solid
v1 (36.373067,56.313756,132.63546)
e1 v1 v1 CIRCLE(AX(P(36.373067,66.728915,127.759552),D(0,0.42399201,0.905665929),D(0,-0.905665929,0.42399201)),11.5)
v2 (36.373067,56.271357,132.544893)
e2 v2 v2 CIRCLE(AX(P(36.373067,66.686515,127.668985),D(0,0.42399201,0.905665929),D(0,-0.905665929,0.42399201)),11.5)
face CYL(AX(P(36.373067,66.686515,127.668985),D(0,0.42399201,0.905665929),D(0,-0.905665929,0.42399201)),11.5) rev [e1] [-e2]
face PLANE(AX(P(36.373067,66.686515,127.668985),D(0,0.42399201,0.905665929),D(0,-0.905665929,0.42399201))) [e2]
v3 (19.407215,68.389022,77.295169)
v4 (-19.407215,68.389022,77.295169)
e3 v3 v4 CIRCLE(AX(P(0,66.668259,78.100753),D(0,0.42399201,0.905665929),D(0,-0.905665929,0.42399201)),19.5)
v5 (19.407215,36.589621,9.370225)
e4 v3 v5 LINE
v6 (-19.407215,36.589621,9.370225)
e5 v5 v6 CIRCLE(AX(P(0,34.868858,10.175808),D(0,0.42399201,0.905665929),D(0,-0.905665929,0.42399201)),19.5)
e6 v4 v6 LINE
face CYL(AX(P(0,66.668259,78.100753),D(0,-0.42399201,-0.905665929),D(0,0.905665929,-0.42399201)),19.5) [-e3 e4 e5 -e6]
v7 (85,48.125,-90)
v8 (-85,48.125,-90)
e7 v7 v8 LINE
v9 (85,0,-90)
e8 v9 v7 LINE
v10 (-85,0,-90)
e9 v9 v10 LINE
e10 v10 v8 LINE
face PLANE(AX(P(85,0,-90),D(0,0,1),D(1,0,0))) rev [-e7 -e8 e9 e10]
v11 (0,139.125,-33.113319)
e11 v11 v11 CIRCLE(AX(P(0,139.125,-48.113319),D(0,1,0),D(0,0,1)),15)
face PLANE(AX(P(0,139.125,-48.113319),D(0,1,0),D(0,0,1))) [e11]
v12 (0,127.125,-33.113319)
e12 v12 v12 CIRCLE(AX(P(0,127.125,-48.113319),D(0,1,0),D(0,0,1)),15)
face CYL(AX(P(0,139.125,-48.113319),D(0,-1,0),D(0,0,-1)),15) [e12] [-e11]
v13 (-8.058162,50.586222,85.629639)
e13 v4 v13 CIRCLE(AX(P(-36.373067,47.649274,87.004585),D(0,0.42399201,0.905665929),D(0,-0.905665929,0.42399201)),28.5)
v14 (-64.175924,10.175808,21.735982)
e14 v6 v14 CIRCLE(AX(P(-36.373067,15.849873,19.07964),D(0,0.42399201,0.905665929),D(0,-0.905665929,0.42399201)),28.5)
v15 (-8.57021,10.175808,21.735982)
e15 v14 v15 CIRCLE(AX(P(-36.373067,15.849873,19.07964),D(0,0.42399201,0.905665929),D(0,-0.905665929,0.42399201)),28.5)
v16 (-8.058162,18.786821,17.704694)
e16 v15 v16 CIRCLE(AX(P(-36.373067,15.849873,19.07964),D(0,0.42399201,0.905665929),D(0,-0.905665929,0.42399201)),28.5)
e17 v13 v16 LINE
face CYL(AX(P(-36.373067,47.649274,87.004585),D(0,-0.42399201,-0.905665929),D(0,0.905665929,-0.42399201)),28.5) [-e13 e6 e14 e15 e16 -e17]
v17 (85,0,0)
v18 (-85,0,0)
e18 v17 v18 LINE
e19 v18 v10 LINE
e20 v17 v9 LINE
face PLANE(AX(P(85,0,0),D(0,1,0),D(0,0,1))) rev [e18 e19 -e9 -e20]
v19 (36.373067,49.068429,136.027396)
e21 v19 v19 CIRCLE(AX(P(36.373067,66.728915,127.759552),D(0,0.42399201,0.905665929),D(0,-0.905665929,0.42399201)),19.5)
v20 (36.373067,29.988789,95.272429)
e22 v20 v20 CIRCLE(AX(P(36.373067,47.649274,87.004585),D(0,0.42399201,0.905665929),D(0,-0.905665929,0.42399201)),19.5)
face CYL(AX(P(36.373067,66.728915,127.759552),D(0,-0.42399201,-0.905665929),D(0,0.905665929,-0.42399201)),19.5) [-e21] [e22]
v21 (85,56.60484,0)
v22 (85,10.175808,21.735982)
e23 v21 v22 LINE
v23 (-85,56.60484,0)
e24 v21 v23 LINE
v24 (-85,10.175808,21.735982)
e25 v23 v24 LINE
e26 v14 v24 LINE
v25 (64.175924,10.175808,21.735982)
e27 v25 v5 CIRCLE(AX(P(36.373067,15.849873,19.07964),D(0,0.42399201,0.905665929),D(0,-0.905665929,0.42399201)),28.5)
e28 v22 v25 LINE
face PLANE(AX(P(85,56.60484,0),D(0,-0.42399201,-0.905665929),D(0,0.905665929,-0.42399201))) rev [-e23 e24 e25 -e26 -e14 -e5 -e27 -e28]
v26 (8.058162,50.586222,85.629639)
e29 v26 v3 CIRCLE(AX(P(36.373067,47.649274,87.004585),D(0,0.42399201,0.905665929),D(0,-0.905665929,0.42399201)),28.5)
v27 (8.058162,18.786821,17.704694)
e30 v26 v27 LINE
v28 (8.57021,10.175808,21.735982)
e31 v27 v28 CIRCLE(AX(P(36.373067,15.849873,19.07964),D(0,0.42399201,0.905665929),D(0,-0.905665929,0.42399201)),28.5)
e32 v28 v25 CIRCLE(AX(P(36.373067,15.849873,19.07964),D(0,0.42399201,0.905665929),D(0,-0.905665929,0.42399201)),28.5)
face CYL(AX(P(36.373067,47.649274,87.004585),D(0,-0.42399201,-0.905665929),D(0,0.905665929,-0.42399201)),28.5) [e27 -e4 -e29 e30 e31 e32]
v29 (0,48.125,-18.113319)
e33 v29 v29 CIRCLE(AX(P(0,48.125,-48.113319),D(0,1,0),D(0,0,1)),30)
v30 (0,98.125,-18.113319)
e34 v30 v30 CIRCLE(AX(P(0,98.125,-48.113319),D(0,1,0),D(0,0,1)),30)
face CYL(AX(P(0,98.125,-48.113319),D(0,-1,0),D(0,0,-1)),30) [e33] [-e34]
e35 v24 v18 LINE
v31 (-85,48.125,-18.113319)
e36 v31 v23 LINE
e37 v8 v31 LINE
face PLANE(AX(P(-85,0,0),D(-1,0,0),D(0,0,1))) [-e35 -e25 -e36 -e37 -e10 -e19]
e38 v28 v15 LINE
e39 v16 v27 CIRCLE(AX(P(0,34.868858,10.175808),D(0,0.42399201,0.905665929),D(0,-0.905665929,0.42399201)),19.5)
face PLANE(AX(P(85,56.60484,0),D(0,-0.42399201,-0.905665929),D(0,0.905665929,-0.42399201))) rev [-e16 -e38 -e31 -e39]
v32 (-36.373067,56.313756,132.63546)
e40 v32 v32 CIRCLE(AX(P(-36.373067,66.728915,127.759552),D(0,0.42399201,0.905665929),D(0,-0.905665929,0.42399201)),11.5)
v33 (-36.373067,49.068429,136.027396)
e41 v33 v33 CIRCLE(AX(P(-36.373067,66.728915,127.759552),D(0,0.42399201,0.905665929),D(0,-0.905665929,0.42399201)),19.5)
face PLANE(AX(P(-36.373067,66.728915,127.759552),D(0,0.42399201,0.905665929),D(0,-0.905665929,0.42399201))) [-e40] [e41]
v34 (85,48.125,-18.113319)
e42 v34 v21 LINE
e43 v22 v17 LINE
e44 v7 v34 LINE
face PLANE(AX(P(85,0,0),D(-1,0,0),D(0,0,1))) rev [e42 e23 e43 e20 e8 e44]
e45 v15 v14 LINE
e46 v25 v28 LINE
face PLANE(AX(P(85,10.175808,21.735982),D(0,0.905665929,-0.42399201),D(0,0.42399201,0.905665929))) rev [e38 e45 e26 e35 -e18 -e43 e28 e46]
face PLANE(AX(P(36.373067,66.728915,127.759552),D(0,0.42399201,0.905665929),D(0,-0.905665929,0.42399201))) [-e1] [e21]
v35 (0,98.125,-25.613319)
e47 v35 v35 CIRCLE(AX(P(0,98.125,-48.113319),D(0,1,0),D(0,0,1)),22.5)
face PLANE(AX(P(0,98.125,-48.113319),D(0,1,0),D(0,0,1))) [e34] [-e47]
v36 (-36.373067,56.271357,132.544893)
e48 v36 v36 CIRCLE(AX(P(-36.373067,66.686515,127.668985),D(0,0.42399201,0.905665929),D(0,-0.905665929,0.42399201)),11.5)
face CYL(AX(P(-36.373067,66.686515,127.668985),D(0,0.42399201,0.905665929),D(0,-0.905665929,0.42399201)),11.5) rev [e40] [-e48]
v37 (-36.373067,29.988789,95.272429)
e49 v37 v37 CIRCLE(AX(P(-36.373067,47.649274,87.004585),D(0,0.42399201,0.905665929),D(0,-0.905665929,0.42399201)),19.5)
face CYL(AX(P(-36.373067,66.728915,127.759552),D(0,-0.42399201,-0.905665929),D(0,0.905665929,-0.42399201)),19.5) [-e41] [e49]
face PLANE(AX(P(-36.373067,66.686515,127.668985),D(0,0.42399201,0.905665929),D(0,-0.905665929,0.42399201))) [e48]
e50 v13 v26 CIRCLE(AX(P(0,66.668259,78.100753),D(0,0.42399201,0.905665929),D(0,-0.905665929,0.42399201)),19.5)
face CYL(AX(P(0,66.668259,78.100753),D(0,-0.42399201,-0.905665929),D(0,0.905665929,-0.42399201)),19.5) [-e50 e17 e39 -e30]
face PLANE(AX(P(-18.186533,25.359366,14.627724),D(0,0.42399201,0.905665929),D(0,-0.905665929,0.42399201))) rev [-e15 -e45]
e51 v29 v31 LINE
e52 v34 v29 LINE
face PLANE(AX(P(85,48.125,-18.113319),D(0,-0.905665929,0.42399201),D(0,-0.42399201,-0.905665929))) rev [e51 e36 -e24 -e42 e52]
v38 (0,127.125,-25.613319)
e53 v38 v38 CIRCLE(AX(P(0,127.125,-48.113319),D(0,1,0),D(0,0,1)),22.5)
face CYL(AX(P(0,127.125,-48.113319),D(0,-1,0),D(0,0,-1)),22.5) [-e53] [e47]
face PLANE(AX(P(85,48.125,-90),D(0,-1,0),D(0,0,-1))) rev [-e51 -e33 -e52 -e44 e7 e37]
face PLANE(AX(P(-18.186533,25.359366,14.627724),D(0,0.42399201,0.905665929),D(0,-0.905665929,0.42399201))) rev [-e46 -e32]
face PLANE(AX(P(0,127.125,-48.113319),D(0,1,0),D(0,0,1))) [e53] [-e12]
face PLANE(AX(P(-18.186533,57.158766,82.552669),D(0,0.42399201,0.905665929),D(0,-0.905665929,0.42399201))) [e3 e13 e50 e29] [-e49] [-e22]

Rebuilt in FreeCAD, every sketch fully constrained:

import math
import FreeCAD as App
import Part
import Sketcher
from FreeCAD import Vector

doc = App.newDocument("Part")
body = doc.addObject("PartDesign::Body", "Body")

# Sketch on YZ plane
sketch1 = body.newObject("Sketcher::SketchObject", "Sketch")
sketch1.AttachmentSupport = (doc.getObject("YZ_Plane"), [""])
sketch1.MapMode = "FlatFace"
sketch1.addGeometry(Part.LineSegment(Vector(0, 0, 0), Vector(0, -90, 0)), False)
sketch1.addGeometry(Part.LineSegment(Vector(0, -90, 0), Vector(48, -90, 0)), False)
sketch1.addGeometry(Part.LineSegment(Vector(48, -90, 0), Vector(48, -18, 0)), False)
sketch1.addGeometry(Part.LineSegment(Vector(48, -18, 0), Vector(57, 0, 0)), False)
sketch1.addGeometry(Part.LineSegment(Vector(57, 0, 0), Vector(10, 22, 0)), False)
sketch1.addGeometry(Part.LineSegment(Vector(10, 22, 0), Vector(0, 0, 0)), False)
sketch1.addConstraint(Sketcher.Constraint("Coincident", 0, 2, 1, 1))
sketch1.addConstraint(Sketcher.Constraint("Coincident", 1, 2, 2, 1))
sketch1.addConstraint(Sketcher.Constraint("Coincident", 2, 2, 3, 1))
sketch1.addConstraint(Sketcher.Constraint("Coincident", 3, 2, 4, 1))
sketch1.addConstraint(Sketcher.Constraint("Coincident", 4, 2, 5, 1))
sketch1.addConstraint(Sketcher.Constraint("Coincident", 5, 2, 0, 1))
sketch1.addConstraint(Sketcher.Constraint("Vertical", 0))
sketch1.addConstraint(Sketcher.Constraint("Horizontal", 1))
sketch1.addConstraint(Sketcher.Constraint("Vertical", 2))
sketch1.addConstraint(Sketcher.Constraint("Coincident", 5, 2, -1, 1))
sketch1.addConstraint(Sketcher.Constraint("PointOnObject", 3, 2, -1))
sketch1.addConstraint(Sketcher.Constraint("Perpendicular", 3, 4))
sketch1.addConstraint(Sketcher.Constraint("Perpendicular", 4, 5))
sketch1.addConstraint(Sketcher.Constraint("DistanceY", 0, 2, 0, 1, 90.0))
sketch1.addConstraint(Sketcher.Constraint("Distance", 3, 20.0))
sketch1.addConstraint(Sketcher.Constraint("Distance", 5, 24.0))
sketch1.addConstraint(Sketcher.Constraint("DistanceX", 1, 1, 1, 2, 48.125))
pad1 = body.newObject("PartDesign::Pad", "Pad")
pad1.Profile = sketch1
pad1.Length = 170
pad1.Midplane = True

# Sketch on XZ plane
sketch2 = body.newObject("Sketcher::SketchObject", "Sketch001")
sketch2.AttachmentSupport = (doc.getObject("XZ_Plane"), [""])
sketch2.MapMode = "FlatFace"
sketch2.AttachmentOffset = App.Placement(Vector(0, 0, -48.125), App.Rotation())
sketch2.addGeometry(Part.Circle(Vector(0, -48, 0), Vector(0, 0, 1), 30), False)
sketch2.addConstraint(Sketcher.Constraint("PointOnObject", 0, 3, -2))
sketch2.addConstraint(Sketcher.Constraint("Diameter", 0, 60.0))
sketch2.addConstraint(Sketcher.Constraint("DistanceY", 0, 3, -1, 1, 48.113319))
pad2 = body.newObject("PartDesign::Pad", "Pad001")
pad2.Profile = sketch2
pad2.Length = 50
pad2.Reversed = True

# Sketch on XZ plane
sketch3 = body.newObject("Sketcher::SketchObject", "Sketch002")
sketch3.AttachmentSupport = (doc.getObject("XZ_Plane"), [""])
sketch3.MapMode = "FlatFace"
sketch3.AttachmentOffset = App.Placement(Vector(0, 0, -98.125), App.Rotation())
sketch3.addGeometry(Part.Circle(Vector(0, -48, 0), Vector(0, 0, 1), 22), False)
sketch3.addConstraint(Sketcher.Constraint("PointOnObject", 0, 3, -2))
sketch3.addConstraint(Sketcher.Constraint("Diameter", 0, 45.0))
sketch3.addConstraint(Sketcher.Constraint("DistanceY", 0, 3, -1, 1, 48.113319))
pad3 = body.newObject("PartDesign::Pad", "Pad002")
pad3.Profile = sketch3
pad3.Length = 29
pad3.Reversed = True

# Sketch on XZ plane
sketch4 = body.newObject("Sketcher::SketchObject", "Sketch003")
sketch4.AttachmentSupport = (doc.getObject("XZ_Plane"), [""])
sketch4.MapMode = "FlatFace"
sketch4.AttachmentOffset = App.Placement(Vector(0, 0, -127.125), App.Rotation())
sketch4.addGeometry(Part.Circle(Vector(0, -48, 0), Vector(0, 0, 1), 15), False)
sketch4.addConstraint(Sketcher.Constraint("PointOnObject", 0, 3, -2))
sketch4.addConstraint(Sketcher.Constraint("Diameter", 0, 30.0))
sketch4.addConstraint(Sketcher.Constraint("DistanceY", 0, 3, -1, 1, 48.113319))
pad4 = body.newObject("PartDesign::Pad", "Pad003")
pad4.Profile = sketch4
pad4.Length = 12
pad4.Reversed = True

# Sketch on an angled plane
sketch5 = body.newObject("Sketcher::SketchObject", "Sketch004")
sketch5.Placement = App.Placement(Vector(0, 10.175808, 21.735982), App.Rotation(Vector(1, 0, 0), Vector(0, 0.905665929, -0.42399201), Vector(0, 0.42399201, 0.905665929), "ZXY"))
sketch5.addGeometry(Part.ArcOfCircle(Part.Circle(Vector(0, 27, 0), Vector(0, 0, 1), 20), math.radians(-114), math.radians(-66)), False)
sketch5.addGeometry(Part.ArcOfCircle(Part.Circle(Vector(36, 6, 0), Vector(0, 0, 1), 28), math.radians(173), math.radians(487)), False)
sketch5.addGeometry(Part.ArcOfCircle(Part.Circle(Vector(0, 27, 0), Vector(0, 0, 1), 20), math.radians(6), math.radians(174)), False)
sketch5.addGeometry(Part.ArcOfCircle(Part.Circle(Vector(-36, 6, 0), Vector(0, 0, 1), 28), math.radians(53), math.radians(367)), False)
sketch5.addConstraint(Sketcher.Constraint("Coincident", 0, 2, 1, 1))
sketch5.addConstraint(Sketcher.Constraint("Coincident", 1, 2, 2, 1))
sketch5.addConstraint(Sketcher.Constraint("Coincident", 2, 2, 3, 1))
sketch5.addConstraint(Sketcher.Constraint("Coincident", 3, 2, 0, 1))
sketch5.addConstraint(Sketcher.Constraint("Coincident", 2, 3, 0, 3))
sketch5.addConstraint(Sketcher.Constraint("Equal", 0, 2))
sketch5.addConstraint(Sketcher.Constraint("Equal", 1, 3))
sketch5.addConstraint(Sketcher.Constraint("Symmetric", 1, 3, 3, 3, -2))
sketch5.addConstraint(Sketcher.Constraint("PointOnObject", 0, 3, -2))
sketch5.addConstraint(Sketcher.Constraint("Radius", 0, 19.5))
sketch5.addConstraint(Sketcher.Constraint("Radius", 1, 28.5))
sketch5.addConstraint(Sketcher.Constraint("DistanceY", 1, 3, 0, 3, 21.0))
sketch5.addConstraint(Sketcher.Constraint("DistanceX", -1, 1, 0, 2, 8.058162))
sketch5.addConstraint(Sketcher.Constraint("DistanceY", -1, 1, 0, 3, 27.265075))
pad5 = body.newObject("PartDesign::Pad", "Pad004")
pad5.Profile = sketch5
pad5.Length = 75

# Sketch on an angled plane
sketch6 = body.newObject("Sketcher::SketchObject", "Sketch005")
sketch6.Placement = App.Placement(Vector(0, 41.975209, 89.660927), App.Rotation(Vector(1, 0, 0), Vector(0, 0.905665929, -0.42399201), Vector(0, 0.42399201, 0.905665929), "ZXY"))
sketch6.addGeometry(Part.Circle(Vector(-36, 6, 0), Vector(0, 0, 1), 20), False)
sketch6.addGeometry(Part.Circle(Vector(36, 6, 0), Vector(0, 0, 1), 20), False)
sketch6.addConstraint(Sketcher.Constraint("Equal", 0, 1))
sketch6.addConstraint(Sketcher.Constraint("Symmetric", 0, 3, 1, 3, -2))
sketch6.addConstraint(Sketcher.Constraint("Diameter", 0, 39.0))
sketch6.addConstraint(Sketcher.Constraint("DistanceX", 0, 3, -1, 1, 36.373067))
sketch6.addConstraint(Sketcher.Constraint("DistanceY", -1, 1, 0, 3, 6.265075))
pad6 = body.newObject("PartDesign::Pad", "Pad005")
pad6.Profile = sketch6
pad6.Length = 45

# Sketch on an angled plane
sketch7 = body.newObject("Sketcher::SketchObject", "Sketch006")
sketch7.Placement = App.Placement(Vector(0, 61.05485, 130.415894), App.Rotation(Vector(1, 0, 0), Vector(0, 0.905665929, -0.42399201), Vector(0, 0.42399201, 0.905665929), "ZXY"))
sketch7.addGeometry(Part.Circle(Vector(-36, 6, 0), Vector(0, 0, 1), 12), False)
sketch7.addGeometry(Part.Circle(Vector(36, 6, 0), Vector(0, 0, 1), 12), False)
sketch7.addConstraint(Sketcher.Constraint("Equal", 0, 1))
sketch7.addConstraint(Sketcher.Constraint("Symmetric", 0, 3, 1, 3, -2))
sketch7.addConstraint(Sketcher.Constraint("Diameter", 0, 23.0))
sketch7.addConstraint(Sketcher.Constraint("DistanceX", 0, 3, -1, 1, 36.373067))
sketch7.addConstraint(Sketcher.Constraint("DistanceY", -1, 1, 0, 3, 6.265075))
pocket1 = body.newObject("PartDesign::Pocket", "Pocket")
pocket1.Profile = sketch7
pocket1.Length = 0.1

doc.recompute()
